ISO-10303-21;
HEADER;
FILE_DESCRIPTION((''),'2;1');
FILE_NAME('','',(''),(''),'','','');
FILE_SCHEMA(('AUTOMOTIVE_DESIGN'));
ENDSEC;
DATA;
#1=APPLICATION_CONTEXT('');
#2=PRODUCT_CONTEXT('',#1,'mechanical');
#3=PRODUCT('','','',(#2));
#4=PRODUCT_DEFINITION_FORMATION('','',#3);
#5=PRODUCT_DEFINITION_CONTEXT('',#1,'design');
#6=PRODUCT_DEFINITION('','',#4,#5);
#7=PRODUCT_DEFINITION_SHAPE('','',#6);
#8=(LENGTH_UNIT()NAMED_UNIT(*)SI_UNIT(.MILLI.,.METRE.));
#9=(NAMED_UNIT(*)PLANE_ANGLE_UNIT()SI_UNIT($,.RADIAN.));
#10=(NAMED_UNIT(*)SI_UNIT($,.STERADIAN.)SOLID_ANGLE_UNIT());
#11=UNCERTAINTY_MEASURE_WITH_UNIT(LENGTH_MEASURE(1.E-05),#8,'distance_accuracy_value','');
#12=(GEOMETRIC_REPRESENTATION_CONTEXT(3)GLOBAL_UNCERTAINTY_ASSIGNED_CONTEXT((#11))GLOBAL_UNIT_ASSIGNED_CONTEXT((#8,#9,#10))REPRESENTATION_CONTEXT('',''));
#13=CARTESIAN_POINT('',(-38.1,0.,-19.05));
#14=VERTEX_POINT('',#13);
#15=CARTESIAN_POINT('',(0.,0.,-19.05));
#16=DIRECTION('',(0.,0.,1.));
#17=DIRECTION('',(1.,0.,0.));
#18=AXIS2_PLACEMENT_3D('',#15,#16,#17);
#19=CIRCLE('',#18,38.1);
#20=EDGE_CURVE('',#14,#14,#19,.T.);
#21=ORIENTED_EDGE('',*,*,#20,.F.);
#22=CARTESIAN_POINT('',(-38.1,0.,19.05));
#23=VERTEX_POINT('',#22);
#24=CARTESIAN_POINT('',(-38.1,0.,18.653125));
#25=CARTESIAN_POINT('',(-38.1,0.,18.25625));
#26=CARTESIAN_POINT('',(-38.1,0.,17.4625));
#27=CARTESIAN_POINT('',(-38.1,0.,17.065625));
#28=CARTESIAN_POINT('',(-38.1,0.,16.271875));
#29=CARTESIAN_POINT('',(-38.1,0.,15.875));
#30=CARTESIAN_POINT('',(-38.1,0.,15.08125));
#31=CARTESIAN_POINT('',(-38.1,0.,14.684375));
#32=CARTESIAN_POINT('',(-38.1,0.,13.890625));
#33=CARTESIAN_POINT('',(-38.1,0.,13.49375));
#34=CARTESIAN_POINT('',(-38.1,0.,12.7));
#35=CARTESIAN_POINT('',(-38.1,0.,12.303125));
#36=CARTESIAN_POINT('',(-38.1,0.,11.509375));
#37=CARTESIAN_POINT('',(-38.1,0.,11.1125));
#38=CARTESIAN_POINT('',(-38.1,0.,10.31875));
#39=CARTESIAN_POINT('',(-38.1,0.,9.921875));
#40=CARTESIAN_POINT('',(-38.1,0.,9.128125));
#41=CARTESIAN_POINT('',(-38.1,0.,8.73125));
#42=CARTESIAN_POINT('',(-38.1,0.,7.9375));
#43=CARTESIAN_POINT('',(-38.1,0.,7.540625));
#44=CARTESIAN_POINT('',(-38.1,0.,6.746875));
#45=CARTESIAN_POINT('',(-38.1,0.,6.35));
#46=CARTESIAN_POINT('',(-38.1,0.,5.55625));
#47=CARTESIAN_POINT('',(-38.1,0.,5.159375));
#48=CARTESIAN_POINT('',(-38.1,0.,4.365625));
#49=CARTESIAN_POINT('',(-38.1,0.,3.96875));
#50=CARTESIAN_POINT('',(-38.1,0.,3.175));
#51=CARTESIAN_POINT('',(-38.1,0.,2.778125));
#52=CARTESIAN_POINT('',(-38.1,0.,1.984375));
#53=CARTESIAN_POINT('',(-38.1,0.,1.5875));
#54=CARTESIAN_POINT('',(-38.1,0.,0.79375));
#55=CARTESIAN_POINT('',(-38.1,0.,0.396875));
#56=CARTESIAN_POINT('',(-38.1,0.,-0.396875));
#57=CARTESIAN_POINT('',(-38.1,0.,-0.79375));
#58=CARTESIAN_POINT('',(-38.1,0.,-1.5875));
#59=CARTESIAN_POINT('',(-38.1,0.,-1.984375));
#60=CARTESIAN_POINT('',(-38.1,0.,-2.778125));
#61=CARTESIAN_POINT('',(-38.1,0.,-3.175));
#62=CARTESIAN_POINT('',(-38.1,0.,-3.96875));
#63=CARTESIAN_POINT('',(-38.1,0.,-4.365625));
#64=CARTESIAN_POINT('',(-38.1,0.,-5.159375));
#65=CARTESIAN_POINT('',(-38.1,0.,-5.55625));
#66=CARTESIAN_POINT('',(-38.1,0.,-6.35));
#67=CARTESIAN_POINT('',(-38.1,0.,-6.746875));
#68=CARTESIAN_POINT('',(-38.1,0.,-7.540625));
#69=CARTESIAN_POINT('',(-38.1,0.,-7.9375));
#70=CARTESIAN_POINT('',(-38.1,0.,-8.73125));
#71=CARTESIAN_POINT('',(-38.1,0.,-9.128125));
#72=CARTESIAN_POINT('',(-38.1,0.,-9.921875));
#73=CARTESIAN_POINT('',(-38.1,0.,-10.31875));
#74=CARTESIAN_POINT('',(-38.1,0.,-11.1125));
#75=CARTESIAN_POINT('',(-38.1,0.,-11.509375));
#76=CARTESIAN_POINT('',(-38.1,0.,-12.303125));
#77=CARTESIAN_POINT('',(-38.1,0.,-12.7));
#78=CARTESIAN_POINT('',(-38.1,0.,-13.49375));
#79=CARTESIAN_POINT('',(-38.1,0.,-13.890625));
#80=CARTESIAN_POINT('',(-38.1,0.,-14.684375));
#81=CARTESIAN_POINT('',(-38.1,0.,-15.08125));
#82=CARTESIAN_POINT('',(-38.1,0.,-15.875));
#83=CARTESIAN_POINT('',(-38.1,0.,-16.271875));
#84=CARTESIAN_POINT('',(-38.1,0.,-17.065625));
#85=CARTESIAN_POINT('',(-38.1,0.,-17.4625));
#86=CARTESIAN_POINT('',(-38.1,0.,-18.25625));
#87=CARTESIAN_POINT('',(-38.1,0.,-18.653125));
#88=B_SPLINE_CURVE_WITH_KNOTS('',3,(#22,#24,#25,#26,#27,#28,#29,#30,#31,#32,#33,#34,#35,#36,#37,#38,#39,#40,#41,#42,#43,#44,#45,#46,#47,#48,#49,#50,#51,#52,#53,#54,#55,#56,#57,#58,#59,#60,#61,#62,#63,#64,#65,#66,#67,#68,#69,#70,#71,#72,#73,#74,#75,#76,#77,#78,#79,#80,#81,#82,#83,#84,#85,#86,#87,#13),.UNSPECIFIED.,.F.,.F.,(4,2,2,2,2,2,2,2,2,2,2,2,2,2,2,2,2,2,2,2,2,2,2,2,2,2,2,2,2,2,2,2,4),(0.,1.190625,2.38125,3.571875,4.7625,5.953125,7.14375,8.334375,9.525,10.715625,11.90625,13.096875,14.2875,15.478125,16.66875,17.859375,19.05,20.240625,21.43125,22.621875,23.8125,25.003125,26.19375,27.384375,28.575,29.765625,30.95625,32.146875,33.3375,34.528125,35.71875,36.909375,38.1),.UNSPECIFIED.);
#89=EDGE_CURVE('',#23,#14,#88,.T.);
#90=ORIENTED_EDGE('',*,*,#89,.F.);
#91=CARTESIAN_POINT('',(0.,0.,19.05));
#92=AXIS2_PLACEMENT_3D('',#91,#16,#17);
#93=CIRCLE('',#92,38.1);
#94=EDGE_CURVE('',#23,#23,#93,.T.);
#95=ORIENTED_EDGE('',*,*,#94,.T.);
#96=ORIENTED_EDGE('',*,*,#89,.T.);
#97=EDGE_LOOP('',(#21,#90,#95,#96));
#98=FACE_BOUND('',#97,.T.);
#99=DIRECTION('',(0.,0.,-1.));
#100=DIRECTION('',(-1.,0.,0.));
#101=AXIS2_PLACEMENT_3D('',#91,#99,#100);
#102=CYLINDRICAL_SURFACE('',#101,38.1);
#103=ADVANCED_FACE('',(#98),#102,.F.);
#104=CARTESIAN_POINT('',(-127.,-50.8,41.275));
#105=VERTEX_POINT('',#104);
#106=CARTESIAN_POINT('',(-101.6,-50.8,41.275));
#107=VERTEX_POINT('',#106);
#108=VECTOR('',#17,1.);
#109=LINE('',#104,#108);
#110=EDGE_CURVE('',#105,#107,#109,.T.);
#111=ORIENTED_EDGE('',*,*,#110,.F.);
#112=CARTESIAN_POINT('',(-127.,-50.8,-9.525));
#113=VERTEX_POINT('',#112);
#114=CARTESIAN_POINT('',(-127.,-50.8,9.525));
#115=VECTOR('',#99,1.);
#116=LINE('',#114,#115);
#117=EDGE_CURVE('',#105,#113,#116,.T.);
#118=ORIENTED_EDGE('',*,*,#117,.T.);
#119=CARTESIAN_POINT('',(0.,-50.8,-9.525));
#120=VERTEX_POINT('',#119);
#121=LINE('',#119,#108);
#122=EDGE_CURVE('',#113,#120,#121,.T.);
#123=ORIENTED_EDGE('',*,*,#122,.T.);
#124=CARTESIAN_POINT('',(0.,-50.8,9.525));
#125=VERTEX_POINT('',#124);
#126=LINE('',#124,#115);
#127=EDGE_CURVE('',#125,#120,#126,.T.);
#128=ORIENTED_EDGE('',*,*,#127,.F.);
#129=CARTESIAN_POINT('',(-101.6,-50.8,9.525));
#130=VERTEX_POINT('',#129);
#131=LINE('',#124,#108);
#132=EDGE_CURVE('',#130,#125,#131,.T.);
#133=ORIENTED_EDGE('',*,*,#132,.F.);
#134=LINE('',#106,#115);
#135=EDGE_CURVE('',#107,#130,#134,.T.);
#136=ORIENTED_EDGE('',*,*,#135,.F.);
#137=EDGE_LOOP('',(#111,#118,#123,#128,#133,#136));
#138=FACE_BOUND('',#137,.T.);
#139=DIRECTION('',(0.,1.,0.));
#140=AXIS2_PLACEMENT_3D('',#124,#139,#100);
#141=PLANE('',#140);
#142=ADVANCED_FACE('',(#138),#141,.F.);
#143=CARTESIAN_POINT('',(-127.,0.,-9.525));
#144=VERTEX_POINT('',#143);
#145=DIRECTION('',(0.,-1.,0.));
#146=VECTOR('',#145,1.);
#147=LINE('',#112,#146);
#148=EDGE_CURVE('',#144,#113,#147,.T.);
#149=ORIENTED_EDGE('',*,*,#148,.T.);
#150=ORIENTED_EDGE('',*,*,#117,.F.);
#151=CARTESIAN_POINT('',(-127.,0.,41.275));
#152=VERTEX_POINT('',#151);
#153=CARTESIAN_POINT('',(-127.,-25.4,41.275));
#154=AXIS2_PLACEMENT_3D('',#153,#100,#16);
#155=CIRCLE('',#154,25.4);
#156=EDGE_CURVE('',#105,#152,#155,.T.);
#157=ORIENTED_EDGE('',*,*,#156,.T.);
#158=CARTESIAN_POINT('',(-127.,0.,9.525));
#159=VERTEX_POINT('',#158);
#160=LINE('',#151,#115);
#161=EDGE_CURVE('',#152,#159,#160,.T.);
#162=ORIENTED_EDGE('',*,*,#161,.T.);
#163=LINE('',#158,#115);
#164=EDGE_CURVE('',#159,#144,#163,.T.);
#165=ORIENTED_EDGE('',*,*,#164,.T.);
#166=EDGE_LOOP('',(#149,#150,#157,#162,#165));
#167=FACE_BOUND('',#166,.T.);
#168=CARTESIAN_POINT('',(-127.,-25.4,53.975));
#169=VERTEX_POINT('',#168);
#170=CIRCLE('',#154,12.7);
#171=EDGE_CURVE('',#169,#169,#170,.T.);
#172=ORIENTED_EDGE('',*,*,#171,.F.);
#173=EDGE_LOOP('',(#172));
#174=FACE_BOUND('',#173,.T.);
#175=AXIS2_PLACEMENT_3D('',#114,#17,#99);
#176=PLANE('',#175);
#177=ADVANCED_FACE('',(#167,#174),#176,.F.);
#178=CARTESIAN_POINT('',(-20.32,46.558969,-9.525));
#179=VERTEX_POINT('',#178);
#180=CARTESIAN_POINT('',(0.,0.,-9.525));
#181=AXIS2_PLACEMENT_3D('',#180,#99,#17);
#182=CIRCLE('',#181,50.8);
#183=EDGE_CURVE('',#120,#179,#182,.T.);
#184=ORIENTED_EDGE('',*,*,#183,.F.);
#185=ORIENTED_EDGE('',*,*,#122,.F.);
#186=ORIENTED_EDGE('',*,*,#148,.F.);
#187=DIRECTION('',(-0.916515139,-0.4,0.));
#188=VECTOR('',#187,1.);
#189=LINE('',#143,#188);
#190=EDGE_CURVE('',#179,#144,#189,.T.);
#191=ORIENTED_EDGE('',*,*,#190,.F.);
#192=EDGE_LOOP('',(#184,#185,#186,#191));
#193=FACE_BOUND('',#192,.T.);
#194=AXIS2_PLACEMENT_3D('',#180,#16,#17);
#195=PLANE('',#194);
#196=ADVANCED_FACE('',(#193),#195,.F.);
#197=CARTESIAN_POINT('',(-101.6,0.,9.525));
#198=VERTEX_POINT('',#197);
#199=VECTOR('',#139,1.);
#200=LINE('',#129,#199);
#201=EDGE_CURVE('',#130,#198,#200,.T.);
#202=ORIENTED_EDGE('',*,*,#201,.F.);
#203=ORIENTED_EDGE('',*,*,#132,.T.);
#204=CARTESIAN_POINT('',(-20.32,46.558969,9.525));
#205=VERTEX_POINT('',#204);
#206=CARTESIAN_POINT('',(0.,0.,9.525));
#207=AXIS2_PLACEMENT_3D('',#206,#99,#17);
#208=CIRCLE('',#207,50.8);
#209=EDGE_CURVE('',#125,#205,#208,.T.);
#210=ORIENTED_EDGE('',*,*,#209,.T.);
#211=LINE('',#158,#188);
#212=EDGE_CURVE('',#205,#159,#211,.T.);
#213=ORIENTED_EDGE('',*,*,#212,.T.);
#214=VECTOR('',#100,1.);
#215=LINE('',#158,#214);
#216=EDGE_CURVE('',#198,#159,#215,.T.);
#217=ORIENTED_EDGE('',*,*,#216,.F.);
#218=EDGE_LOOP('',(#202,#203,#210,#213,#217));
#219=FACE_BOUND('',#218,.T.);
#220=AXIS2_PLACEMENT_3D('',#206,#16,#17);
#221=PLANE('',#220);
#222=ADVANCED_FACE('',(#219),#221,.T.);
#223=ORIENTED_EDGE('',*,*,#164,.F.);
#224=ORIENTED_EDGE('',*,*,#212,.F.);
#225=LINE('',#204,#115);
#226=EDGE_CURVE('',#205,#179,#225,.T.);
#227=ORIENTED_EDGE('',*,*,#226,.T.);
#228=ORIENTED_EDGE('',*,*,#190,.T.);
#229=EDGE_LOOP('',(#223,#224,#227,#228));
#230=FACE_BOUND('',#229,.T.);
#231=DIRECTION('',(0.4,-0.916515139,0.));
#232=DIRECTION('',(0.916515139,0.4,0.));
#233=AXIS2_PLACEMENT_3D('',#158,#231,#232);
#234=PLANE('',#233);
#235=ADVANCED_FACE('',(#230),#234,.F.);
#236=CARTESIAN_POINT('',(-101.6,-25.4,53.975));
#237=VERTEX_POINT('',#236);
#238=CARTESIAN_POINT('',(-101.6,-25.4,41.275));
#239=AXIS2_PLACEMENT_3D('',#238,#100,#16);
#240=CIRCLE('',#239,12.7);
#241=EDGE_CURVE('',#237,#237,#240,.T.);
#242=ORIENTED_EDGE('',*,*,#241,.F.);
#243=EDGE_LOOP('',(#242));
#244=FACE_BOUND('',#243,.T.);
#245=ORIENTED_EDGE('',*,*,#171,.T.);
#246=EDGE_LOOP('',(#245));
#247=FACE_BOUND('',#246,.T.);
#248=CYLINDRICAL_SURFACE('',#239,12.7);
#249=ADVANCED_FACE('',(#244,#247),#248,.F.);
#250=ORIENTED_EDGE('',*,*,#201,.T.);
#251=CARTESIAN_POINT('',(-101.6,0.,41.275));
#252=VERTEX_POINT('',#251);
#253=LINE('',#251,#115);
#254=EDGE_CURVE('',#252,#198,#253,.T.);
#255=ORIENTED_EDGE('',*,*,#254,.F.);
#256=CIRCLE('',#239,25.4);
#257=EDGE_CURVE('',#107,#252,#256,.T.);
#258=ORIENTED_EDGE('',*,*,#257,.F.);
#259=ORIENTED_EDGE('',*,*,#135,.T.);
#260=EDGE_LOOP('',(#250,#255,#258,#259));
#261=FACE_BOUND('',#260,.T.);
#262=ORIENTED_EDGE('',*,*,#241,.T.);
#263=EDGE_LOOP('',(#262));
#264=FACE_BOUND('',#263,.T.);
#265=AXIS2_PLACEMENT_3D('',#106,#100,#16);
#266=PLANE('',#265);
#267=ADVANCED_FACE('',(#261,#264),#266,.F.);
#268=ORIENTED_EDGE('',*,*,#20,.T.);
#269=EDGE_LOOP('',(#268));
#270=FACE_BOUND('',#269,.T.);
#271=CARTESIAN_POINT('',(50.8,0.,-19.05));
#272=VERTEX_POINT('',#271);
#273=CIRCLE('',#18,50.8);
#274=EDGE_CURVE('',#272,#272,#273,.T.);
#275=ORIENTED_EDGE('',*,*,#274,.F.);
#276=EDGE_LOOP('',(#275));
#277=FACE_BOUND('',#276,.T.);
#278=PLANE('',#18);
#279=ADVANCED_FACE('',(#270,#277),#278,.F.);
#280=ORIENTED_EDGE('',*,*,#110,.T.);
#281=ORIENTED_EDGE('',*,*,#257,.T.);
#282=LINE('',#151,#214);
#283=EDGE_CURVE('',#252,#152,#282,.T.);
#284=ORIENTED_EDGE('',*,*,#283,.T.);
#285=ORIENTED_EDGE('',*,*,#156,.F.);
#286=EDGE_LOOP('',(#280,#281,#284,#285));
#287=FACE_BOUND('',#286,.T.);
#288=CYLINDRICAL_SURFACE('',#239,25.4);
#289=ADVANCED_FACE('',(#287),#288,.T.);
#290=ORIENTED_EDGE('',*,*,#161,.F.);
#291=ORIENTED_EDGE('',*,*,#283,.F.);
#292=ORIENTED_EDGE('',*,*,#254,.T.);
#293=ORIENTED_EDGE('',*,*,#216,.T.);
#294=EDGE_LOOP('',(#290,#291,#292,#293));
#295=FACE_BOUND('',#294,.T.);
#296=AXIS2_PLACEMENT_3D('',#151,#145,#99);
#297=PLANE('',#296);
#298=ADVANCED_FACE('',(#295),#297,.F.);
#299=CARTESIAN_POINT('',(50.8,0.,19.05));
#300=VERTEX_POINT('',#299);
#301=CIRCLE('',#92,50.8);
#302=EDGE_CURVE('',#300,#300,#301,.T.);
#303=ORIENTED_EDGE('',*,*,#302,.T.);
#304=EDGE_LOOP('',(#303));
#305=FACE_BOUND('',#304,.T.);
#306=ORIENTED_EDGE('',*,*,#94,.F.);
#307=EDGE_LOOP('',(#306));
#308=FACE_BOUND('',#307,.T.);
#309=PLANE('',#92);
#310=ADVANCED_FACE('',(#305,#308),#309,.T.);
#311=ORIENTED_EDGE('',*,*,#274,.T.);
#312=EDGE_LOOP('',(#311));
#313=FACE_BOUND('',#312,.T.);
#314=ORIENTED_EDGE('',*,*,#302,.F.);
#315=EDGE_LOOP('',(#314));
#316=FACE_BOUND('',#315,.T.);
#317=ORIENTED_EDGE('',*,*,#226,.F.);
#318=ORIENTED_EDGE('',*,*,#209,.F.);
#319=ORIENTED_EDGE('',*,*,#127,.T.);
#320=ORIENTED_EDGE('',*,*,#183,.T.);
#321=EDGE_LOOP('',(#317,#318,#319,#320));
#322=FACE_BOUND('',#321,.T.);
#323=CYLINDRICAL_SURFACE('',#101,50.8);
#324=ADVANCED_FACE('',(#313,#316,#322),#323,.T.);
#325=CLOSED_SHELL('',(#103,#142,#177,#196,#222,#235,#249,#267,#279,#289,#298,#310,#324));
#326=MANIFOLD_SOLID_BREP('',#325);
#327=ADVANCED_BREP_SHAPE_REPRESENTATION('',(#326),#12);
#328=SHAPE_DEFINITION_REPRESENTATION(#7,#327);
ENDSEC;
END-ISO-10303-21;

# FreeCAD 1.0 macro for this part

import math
import FreeCAD as App
import Part
import Sketcher
Q = App.Units.Quantity

doc = App.newDocument("Part")
body = doc.addObject("PartDesign::Body", "Body")

sketch1 = body.newObject("Sketcher::SketchObject", "Sketch")
sketch1.AttachmentSupport = (doc.getObject("XY_Plane"), [""])
sketch1.MapMode = "FlatFace"
sketch1.addGeometry(Part.Circle(App.Vector(0, 0, 0), App.Vector(0, 0, 1), 51), False)
sketch1.addGeometry(Part.Circle(App.Vector(0, 0, 0), App.Vector(0, 0, 1), 38), False)
sketch1.addConstraint(Sketcher.Constraint("Coincident", 0, 3, -1, 1))
sketch1.addConstraint(Sketcher.Constraint("Coincident", 1, 3, -1, 1))
sketch1.addConstraint(Sketcher.Constraint("Diameter", 0, Q("4 in")))
sketch1.addConstraint(Sketcher.Constraint("Diameter", 1, Q("3 in")))
pad1 = body.newObject("PartDesign::Pad", "Pad")
pad1.Profile = sketch1
pad1.Length = Q("1.5 in")
pad1.Midplane = True

sketch2 = body.newObject("Sketcher::SketchObject", "Sketch001")
sketch2.AttachmentSupport = (doc.getObject("XY_Plane"), [""])
sketch2.MapMode = "FlatFace"
sketch2.addGeometry(Part.LineSegment(App.Vector(-127, -51, 0), App.Vector(0, -51, 0)), False)
sketch2.addGeometry(Part.ArcOfCircle(Part.Circle(App.Vector(0, 0, 0), App.Vector(0, 0, 1), 51), math.radians(114), math.radians(270)), False)
sketch2.addGeometry(Part.LineSegment(App.Vector(-20, 47, 0), App.Vector(-127, 0, 0)), False)
sketch2.addGeometry(Part.LineSegment(App.Vector(-127, 0, 0), App.Vector(-127, -51, 0)), False)
sketch2.addConstraint(Sketcher.Constraint("Tangent", 0, 2, 1, 2))
sketch2.addConstraint(Sketcher.Constraint("Tangent", 1, 1, 2, 1))
sketch2.addConstraint(Sketcher.Constraint("Coincident", 2, 2, 3, 1))
sketch2.addConstraint(Sketcher.Constraint("Coincident", 3, 2, 0, 1))
sketch2.addConstraint(Sketcher.Constraint("Horizontal", 0))
sketch2.addConstraint(Sketcher.Constraint("Vertical", 3))
sketch2.addConstraint(Sketcher.Constraint("Coincident", 1, 3, -1, 1))
sketch2.addConstraint(Sketcher.Constraint("PointOnObject", 2, 2, -1))
sketch2.addConstraint(Sketcher.Constraint("Radius", 1, Q("2 in")))
sketch2.addConstraint(Sketcher.Constraint("DistanceX", 0, 1, 0, 2, Q("5 in")))
pad2 = body.newObject("PartDesign::Pad", "Pad001")
pad2.Profile = sketch2
pad2.Length = Q("0.75 in")
pad2.Midplane = True

sketch3 = body.newObject("Sketcher::SketchObject", "Sketch002")
sketch3.AttachmentSupport = (doc.getObject("XY_Plane"), [""])
sketch3.MapMode = "FlatFace"
sketch3.AttachmentOffset = App.Placement(App.Vector(0, 0, 0.375 * 25.4), App.Rotation())
sketch3.addGeometry(Part.LineSegment(App.Vector(-127, 0, 0), App.Vector(-127, -51, 0)), False)
sketch3.addGeometry(Part.LineSegment(App.Vector(-127, -51, 0), App.Vector(-102, -51, 0)), False)
sketch3.addGeometry(Part.LineSegment(App.Vector(-102, -51, 0), App.Vector(-102, 0, 0)), False)
sketch3.addGeometry(Part.LineSegment(App.Vector(-102, 0, 0), App.Vector(-127, 0, 0)), False)
sketch3.addConstraint(Sketcher.Constraint("Coincident", 0, 2, 1, 1))
sketch3.addConstraint(Sketcher.Constraint("Coincident", 1, 2, 2, 1))
sketch3.addConstraint(Sketcher.Constraint("Coincident", 2, 2, 3, 1))
sketch3.addConstraint(Sketcher.Constraint("Coincident", 3, 2, 0, 1))
sketch3.addConstraint(Sketcher.Constraint("Vertical", 0))
sketch3.addConstraint(Sketcher.Constraint("Horizontal", 1))
sketch3.addConstraint(Sketcher.Constraint("Vertical", 2))
sketch3.addConstraint(Sketcher.Constraint("Horizontal", 3))
sketch3.addConstraint(Sketcher.Constraint("PointOnObject", 2, 2, -1))
sketch3.addConstraint(Sketcher.Constraint("DistanceX", 1, 1, 1, 2, Q("1 in")))
sketch3.addConstraint(Sketcher.Constraint("DistanceY", 0, 2, 0, 1, Q("2 in")))
sketch3.addConstraint(Sketcher.Constraint("DistanceX", 0, 2, -1, 1, Q("5 in")))
pad3 = body.newObject("PartDesign::Pad", "Pad002")
pad3.Profile = sketch3
pad3.Length = Q("1.25 in")

sketch4 = body.newObject("Sketcher::SketchObject", "Sketch003")
sketch4.AttachmentSupport = (doc.getObject("YZ_Plane"), [""])
sketch4.MapMode = "FlatFace"
sketch4.AttachmentOffset = App.Placement(App.Vector(0, 0, -5 * 25.4), App.Rotation())
sketch4.addGeometry(Part.Circle(App.Vector(-25, 41, 0), App.Vector(0, 0, 1), 25), False)
sketch4.addGeometry(Part.Circle(App.Vector(-25, 41, 0), App.Vector(0, 0, 1), 13), False)
sketch4.addConstraint(Sketcher.Constraint("Coincident", 1, 3, 0, 3))
sketch4.addConstraint(Sketcher.Constraint("Diameter", 0, Q("2 in")))
sketch4.addConstraint(Sketcher.Constraint("Diameter", 1, Q("1 in")))
sketch4.addConstraint(Sketcher.Constraint("DistanceX", 0, 3, -1, 1, Q("1 in")))
sketch4.addConstraint(Sketcher.Constraint("DistanceY", -1, 1, 0, 3, Q("1.625 in")))
pad4 = body.newObject("PartDesign::Pad", "Pad003")
pad4.Profile = sketch4
pad4.Length = Q("1 in")

sketch5 = body.newObject("Sketcher::SketchObject", "Sketch004")
sketch5.AttachmentSupport = (doc.getObject("YZ_Plane"), [""])
sketch5.MapMode = "FlatFace"
sketch5.AttachmentOffset = App.Placement(App.Vector(0, 0, -5 * 25.4), App.Rotation())
sketch5.addGeometry(Part.Circle(App.Vector(-25, 41, 0), App.Vector(0, 0, 1), 13), False)
sketch5.addConstraint(Sketcher.Constraint("Diameter", 0, Q("1 in")))
sketch5.addConstraint(Sketcher.Constraint("DistanceX", 0, 3, -1, 1, Q("1 in")))
sketch5.addConstraint(Sketcher.Constraint("DistanceY", -1, 1, 0, 3, Q("1.625 in")))
pocket1 = body.newObject("PartDesign::Pocket", "Pocket")
pocket1.Profile = sketch5
pocket1.Type = "ThroughAll"
pocket1.Reversed = True

doc.recompute()
